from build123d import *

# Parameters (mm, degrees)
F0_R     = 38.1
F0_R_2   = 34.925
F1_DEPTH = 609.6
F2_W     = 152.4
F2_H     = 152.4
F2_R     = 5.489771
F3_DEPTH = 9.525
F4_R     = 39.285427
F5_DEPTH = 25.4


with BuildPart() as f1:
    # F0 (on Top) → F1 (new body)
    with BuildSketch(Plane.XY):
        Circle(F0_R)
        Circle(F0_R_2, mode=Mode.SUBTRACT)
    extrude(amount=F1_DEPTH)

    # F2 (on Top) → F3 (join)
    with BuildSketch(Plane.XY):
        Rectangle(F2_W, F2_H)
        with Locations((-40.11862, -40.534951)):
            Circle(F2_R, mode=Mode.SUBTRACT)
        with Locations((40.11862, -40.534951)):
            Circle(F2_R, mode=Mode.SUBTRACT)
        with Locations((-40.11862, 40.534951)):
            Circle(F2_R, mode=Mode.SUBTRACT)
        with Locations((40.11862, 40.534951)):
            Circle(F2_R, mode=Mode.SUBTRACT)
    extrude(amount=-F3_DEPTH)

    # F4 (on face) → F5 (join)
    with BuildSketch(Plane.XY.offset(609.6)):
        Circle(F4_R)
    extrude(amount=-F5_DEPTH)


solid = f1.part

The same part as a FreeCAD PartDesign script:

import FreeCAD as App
import Part
import Sketcher
from FreeCAD import Vector
Q = App.Units.Quantity


def add_polygon(sketch, points):
    """Adds a closed chain of lines whose ends are joined by coincident constraints."""
    first, n = sketch.GeometryCount, len(points)
    for a, b in zip(points, points[1:] + points[:1]):
        sketch.addGeometry(Part.LineSegment(App.Vector(*a, 0), App.Vector(*b, 0)), False)
    for i in range(n):
        sketch.addConstraint(Sketcher.Constraint("Coincident", first + i, 2, first + (i + 1) % n, 1))

doc = App.newDocument("Part")
params = doc.addObject("Spreadsheet::Sheet", "Params")
for row, (alias, value) in enumerate([
    ("sketch1_diameter", "3 in"),
    ("sketch1_diameter2", "2.75 in"),
    ("pad1_length", "24 in"),
    ("sketch2_width", "6 in"),
    ("pad2_length", "0.375 in"),
    ("pad3_length", "1 in"),
], start=1):
    params.set(f"A{row}", alias)
    params.set(f"B{row}", "=" + value)
    params.setAlias(f"B{row}", alias)

body = doc.addObject("PartDesign::Body", "Body")

# Sketch on XY plane
sketch1 = body.newObject("Sketcher::SketchObject", "Sketch")
sketch1.AttachmentSupport = (doc.getObject("XY_Plane"), [""])
sketch1.MapMode = "FlatFace"
sketch1.addGeometry(Part.Circle(Vector(0, 0, 0), Vector(0, 0, 1), 38.1), False)
sketch1.addGeometry(Part.Circle(Vector(0, 0, 0), Vector(0, 0, 1), 34.925), False)
sketch1.addConstraint(Sketcher.Constraint("Coincident", 0, 3, -1, 1))
sketch1.addConstraint(Sketcher.Constraint("Coincident", 1, 3, -1, 1))
sketch1.addConstraint(Sketcher.Constraint("Diameter", 0, Q("3 in")))
sketch1.addConstraint(Sketcher.Constraint("Diameter", 1, Q("2.75 in")))
sketch1.setExpression("Constraints[2]", "Params.sketch1_diameter")
sketch1.setExpression("Constraints[3]", "Params.sketch1_diameter2")
pad1 = body.newObject("PartDesign::Pad", "Pad")
pad1.Profile = sketch1
pad1.setExpression("Length", "Params.pad1_length")

# Sketch on XY plane
sketch2 = body.newObject("Sketcher::SketchObject", "Sketch001")
sketch2.AttachmentSupport = (doc.getObject("XY_Plane"), [""])
sketch2.MapMode = "FlatFace"
add_polygon(sketch2, [(-76.2, 76.2), (-76.2, -76.2), (76.2, -76.2), (76.2, 76.2)])  # lines 0-3
sketch2.addGeometry(Part.Circle(Vector(-40.11862, -40.534951, 0), Vector(0, 0, 1), 5.489771), False)  # 4
sketch2.addGeometry(Part.Circle(Vector(40.11862, -40.534951, 0), Vector(0, 0, 1), 5.489771), False)  # 5
sketch2.addGeometry(Part.Circle(Vector(-40.11862, 40.534951, 0), Vector(0, 0, 1), 5.489771), False)  # 6
sketch2.addGeometry(Part.Circle(Vector(40.11862, 40.534951, 0), Vector(0, 0, 1), 5.489771), False)  # 7
sketch2.addConstraint(Sketcher.Constraint("Vertical", 0))
sketch2.addConstraint(Sketcher.Constraint("Horizontal", 1))
sketch2.addConstraint(Sketcher.Constraint("Vertical", 2))
sketch2.addConstraint(Sketcher.Constraint("Horizontal", 3))
sketch2.addConstraint(Sketcher.Constraint("Equal", 4, 5))
sketch2.addConstraint(Sketcher.Constraint("Equal", 5, 6))
sketch2.addConstraint(Sketcher.Constraint("Equal", 6, 7))
sketch2.addConstraint(Sketcher.Constraint("Symmetric", 5, 3, 6, 3, -1, 1))
sketch2.addConstraint(Sketcher.Constraint("Symmetric", 4, 3, 7, 3, -1, 1))
sketch2.addConstraint(Sketcher.Constraint("Symmetric", 0, 2, 2, 2, -1, 1))
sketch2.addConstraint(Sketcher.Constraint("Symmetric", 4, 3, 5, 3, -2))
sketch2.addConstraint(Sketcher.Constraint("Equal", 3, 0))
sketch2.addConstraint(Sketcher.Constraint("DistanceX", 1, 1, 1, 2, Q("6 in")))
sketch2.addConstraint(Sketcher.Constraint("Diameter", 4, 10.979542))
sketch2.addConstraint(Sketcher.Constraint("DistanceY", 4, 3, 6, 3, 81.069902))
sketch2.addConstraint(Sketcher.Constraint("DistanceX", 4, 3, -1, 1, 40.11862))
sketch2.setExpression("Constraints[16]", "Params.sketch2_width")
pad2 = body.newObject("PartDesign::Pad", "Pad001")
pad2.Profile = sketch2
pad2.setExpression("Length", "Params.pad2_length")
pad2.Reversed = True

# Sketch on XY plane
sketch3 = body.newObject("Sketcher::SketchObject", "Sketch002")
sketch3.AttachmentSupport = (doc.getObject("XY_Plane"), [""])
sketch3.MapMode = "FlatFace"
sketch3.AttachmentOffset = App.Placement(Vector(0, 0, 24 * 25.4), App.Rotation())
sketch3.addGeometry(Part.Circle(Vector(0, 0, 0), Vector(0, 0, 1), 39.285427), False)
sketch3.addConstraint(Sketcher.Constraint("Coincident", 0, 3, -1, 1))
sketch3.addConstraint(Sketcher.Constraint("Diameter", 0, 78.570854))
pad3 = body.newObject("PartDesign::Pad", "Pad002")
pad3.Profile = sketch3
pad3.setExpression("Length", "Params.pad3_length")
pad3.Reversed = True

doc.recompute()
